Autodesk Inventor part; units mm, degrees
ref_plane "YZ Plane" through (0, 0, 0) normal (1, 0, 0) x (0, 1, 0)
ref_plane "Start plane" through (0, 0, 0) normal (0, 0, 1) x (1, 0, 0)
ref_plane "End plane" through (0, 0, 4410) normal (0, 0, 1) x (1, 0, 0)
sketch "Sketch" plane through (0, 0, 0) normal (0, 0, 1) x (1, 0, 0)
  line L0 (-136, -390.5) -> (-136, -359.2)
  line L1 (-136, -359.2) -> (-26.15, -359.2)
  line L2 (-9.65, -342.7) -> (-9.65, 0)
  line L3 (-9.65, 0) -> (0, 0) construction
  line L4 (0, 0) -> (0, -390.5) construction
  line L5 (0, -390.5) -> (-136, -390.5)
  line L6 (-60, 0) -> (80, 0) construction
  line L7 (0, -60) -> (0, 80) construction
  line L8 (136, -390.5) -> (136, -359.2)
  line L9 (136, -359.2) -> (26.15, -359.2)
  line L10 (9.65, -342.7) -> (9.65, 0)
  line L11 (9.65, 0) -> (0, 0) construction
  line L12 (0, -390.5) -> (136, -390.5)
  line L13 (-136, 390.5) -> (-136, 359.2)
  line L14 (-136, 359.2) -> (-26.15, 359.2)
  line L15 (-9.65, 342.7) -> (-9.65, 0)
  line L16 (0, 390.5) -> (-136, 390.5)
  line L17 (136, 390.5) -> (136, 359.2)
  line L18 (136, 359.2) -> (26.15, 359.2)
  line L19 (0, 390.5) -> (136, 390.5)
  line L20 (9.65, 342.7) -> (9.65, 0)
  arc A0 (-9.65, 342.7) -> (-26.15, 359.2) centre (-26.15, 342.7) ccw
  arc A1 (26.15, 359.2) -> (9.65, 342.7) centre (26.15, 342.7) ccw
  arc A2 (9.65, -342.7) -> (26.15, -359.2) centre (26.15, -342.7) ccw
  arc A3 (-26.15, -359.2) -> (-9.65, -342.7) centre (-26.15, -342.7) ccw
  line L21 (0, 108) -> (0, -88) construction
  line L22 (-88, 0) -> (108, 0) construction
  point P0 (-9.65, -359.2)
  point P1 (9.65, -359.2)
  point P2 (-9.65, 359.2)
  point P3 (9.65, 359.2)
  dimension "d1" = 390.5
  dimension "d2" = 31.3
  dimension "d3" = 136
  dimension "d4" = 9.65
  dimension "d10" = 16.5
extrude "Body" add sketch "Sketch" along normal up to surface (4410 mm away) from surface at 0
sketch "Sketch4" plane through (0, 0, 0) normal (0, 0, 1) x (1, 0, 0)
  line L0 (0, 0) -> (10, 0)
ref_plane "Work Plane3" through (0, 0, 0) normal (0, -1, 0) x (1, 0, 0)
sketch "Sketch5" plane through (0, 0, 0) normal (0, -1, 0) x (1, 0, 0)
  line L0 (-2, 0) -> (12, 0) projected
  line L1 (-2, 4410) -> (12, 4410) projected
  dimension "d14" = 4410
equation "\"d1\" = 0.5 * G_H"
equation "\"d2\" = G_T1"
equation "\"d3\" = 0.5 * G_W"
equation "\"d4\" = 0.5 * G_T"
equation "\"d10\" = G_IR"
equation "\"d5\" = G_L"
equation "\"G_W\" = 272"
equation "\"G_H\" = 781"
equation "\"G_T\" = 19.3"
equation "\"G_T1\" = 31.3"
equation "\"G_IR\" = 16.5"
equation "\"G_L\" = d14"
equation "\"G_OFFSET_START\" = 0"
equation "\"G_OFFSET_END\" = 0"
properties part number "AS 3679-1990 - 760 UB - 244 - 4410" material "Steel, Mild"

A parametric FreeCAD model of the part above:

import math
import FreeCAD as App
import Part
import Sketcher
Q = App.Units.Quantity

doc = App.newDocument("Part")
body = doc.addObject("PartDesign::Body", "Body")

# Sketch on XY plane
sketch1 = body.newObject("Sketcher::SketchObject", "Sketch")
sketch1.AttachmentSupport = (doc.getObject("XY_Plane"), [""])
sketch1.MapMode = "FlatFace"
sketch1.addGeometry(Part.LineSegment(App.Vector(-136, -359.2, 0), App.Vector(-136, -390.5, 0)), False)
sketch1.addGeometry(Part.LineSegment(App.Vector(-136, -390.5, 0), App.Vector(136, -390.5, 0)), False)
sketch1.addGeometry(Part.LineSegment(App.Vector(136, -390.5, 0), App.Vector(136, -359.2, 0)), False)
sketch1.addGeometry(Part.LineSegment(App.Vector(136, -359.2, 0), App.Vector(26.15, -359.2, 0)), False)
sketch1.addGeometry(Part.ArcOfCircle(Part.Circle(App.Vector(26.15, -342.7, 0), App.Vector(0, 0, 1), 16.5), math.radians(180), math.radians(270)), False)
sketch1.addGeometry(Part.LineSegment(App.Vector(9.65, -342.7, 0), App.Vector(9.65, 342.7, 0)), False)
sketch1.addGeometry(Part.ArcOfCircle(Part.Circle(App.Vector(26.15, 342.7, 0), App.Vector(0, 0, 1), 16.5), math.radians(90), math.radians(180)), False)
sketch1.addGeometry(Part.LineSegment(App.Vector(26.15, 359.2, 0), App.Vector(136, 359.2, 0)), False)
sketch1.addGeometry(Part.LineSegment(App.Vector(136, 359.2, 0), App.Vector(136, 390.5, 0)), False)
sketch1.addGeometry(Part.LineSegment(App.Vector(136, 390.5, 0), App.Vector(-136, 390.5, 0)), False)
sketch1.addGeometry(Part.LineSegment(App.Vector(-136, 390.5, 0), App.Vector(-136, 359.2, 0)), False)
sketch1.addGeometry(Part.LineSegment(App.Vector(-136, 359.2, 0), App.Vector(-26.15, 359.2, 0)), False)
sketch1.addGeometry(Part.ArcOfCircle(Part.Circle(App.Vector(-26.15, 342.7, 0), App.Vector(0, 0, 1), 16.5), math.radians(0), math.radians(90)), False)
sketch1.addGeometry(Part.LineSegment(App.Vector(-9.65, 342.7, 0), App.Vector(-9.65, -342.7, 0)), False)
sketch1.addGeometry(Part.ArcOfCircle(Part.Circle(App.Vector(-26.15, -342.7, 0), App.Vector(0, 0, 1), 16.5), math.radians(-90), math.radians(0)), False)
sketch1.addGeometry(Part.LineSegment(App.Vector(-26.15, -359.2, 0), App.Vector(-136, -359.2, 0)), False)
sketch1.addConstraint(Sketcher.Constraint("Coincident", 0, 2, 1, 1))
sketch1.addConstraint(Sketcher.Constraint("Coincident", 1, 2, 2, 1))
sketch1.addConstraint(Sketcher.Constraint("Coincident", 2, 2, 3, 1))
sketch1.addConstraint(Sketcher.Constraint("Tangent", 3, 2, 4, 2))
sketch1.addConstraint(Sketcher.Constraint("Tangent", 4, 1, 5, 1))
sketch1.addConstraint(Sketcher.Constraint("Tangent", 5, 2, 6, 2))
sketch1.addConstraint(Sketcher.Constraint("Tangent", 6, 1, 7, 1))
sketch1.addConstraint(Sketcher.Constraint("Coincident", 7, 2, 8, 1))
sketch1.addConstraint(Sketcher.Constraint("Coincident", 8, 2, 9, 1))
sketch1.addConstraint(Sketcher.Constraint("Coincident", 9, 2, 10, 1))
sketch1.addConstraint(Sketcher.Constraint("Coincident", 10, 2, 11, 1))
sketch1.addConstraint(Sketcher.Constraint("Tangent", 11, 2, 12, 2))
sketch1.addConstraint(Sketcher.Constraint("Tangent", 12, 1, 13, 1))
sketch1.addConstraint(Sketcher.Constraint("Tangent", 13, 2, 14, 2))
sketch1.addConstraint(Sketcher.Constraint("Tangent", 14, 1, 15, 1))
sketch1.addConstraint(Sketcher.Constraint("Coincident", 15, 2, 0, 1))
sketch1.addConstraint(Sketcher.Constraint("Vertical", 0))
sketch1.addConstraint(Sketcher.Constraint("Horizontal", 1))
sketch1.addConstraint(Sketcher.Constraint("Vertical", 2))
sketch1.addConstraint(Sketcher.Constraint("Horizontal", 3))
sketch1.addConstraint(Sketcher.Constraint("Vertical", 5))
sketch1.addConstraint(Sketcher.Constraint("Horizontal", 7))
sketch1.addConstraint(Sketcher.Constraint("Vertical", 8))
sketch1.addConstraint(Sketcher.Constraint("Horizontal", 9))
sketch1.addConstraint(Sketcher.Constraint("Vertical", 10))
sketch1.addConstraint(Sketcher.Constraint("Horizontal", 11))
sketch1.addConstraint(Sketcher.Constraint("Vertical", 13))
sketch1.addConstraint(Sketcher.Constraint("Horizontal", 15))
sketch1.addConstraint(Sketcher.Constraint("Equal", 4, 6))
sketch1.addConstraint(Sketcher.Constraint("Equal", 6, 12))
sketch1.addConstraint(Sketcher.Constraint("Equal", 12, 14))
sketch1.addConstraint(Sketcher.Constraint("Symmetric", 4, 3, 12, 3, -1, 1))
sketch1.addConstraint(Sketcher.Constraint("Symmetric", 0, 2, 8, 2, -1, 1))
sketch1.addConstraint(Sketcher.Constraint("Symmetric", 7, 2, 10, 2, -2))
sketch1.addConstraint(Sketcher.Constraint("Symmetric", 2, 2, 15, 2, -2))
sketch1.addConstraint(Sketcher.Constraint("Radius", 4, Q("16.5 mm")))
sketch1.addConstraint(Sketcher.Constraint("DistanceY", 0, 2, 0, 1, Q("31.3 mm")))
sketch1.addConstraint(Sketcher.Constraint("DistanceX", 0, 2, -1, 1, Q("136 mm")))
sketch1.addConstraint(Sketcher.Constraint("DistanceY", 0, 2, -1, 1, Q("390.5 mm")))
sketch1.addConstraint(Sketcher.Constraint("DistanceX", -1, 1, 4, 1, Q("9.65 mm")))
pad1 = body.newObject("PartDesign::Pad", "Pad")
pad1.Profile = sketch1
pad1.Length = 4410

doc.recompute()
